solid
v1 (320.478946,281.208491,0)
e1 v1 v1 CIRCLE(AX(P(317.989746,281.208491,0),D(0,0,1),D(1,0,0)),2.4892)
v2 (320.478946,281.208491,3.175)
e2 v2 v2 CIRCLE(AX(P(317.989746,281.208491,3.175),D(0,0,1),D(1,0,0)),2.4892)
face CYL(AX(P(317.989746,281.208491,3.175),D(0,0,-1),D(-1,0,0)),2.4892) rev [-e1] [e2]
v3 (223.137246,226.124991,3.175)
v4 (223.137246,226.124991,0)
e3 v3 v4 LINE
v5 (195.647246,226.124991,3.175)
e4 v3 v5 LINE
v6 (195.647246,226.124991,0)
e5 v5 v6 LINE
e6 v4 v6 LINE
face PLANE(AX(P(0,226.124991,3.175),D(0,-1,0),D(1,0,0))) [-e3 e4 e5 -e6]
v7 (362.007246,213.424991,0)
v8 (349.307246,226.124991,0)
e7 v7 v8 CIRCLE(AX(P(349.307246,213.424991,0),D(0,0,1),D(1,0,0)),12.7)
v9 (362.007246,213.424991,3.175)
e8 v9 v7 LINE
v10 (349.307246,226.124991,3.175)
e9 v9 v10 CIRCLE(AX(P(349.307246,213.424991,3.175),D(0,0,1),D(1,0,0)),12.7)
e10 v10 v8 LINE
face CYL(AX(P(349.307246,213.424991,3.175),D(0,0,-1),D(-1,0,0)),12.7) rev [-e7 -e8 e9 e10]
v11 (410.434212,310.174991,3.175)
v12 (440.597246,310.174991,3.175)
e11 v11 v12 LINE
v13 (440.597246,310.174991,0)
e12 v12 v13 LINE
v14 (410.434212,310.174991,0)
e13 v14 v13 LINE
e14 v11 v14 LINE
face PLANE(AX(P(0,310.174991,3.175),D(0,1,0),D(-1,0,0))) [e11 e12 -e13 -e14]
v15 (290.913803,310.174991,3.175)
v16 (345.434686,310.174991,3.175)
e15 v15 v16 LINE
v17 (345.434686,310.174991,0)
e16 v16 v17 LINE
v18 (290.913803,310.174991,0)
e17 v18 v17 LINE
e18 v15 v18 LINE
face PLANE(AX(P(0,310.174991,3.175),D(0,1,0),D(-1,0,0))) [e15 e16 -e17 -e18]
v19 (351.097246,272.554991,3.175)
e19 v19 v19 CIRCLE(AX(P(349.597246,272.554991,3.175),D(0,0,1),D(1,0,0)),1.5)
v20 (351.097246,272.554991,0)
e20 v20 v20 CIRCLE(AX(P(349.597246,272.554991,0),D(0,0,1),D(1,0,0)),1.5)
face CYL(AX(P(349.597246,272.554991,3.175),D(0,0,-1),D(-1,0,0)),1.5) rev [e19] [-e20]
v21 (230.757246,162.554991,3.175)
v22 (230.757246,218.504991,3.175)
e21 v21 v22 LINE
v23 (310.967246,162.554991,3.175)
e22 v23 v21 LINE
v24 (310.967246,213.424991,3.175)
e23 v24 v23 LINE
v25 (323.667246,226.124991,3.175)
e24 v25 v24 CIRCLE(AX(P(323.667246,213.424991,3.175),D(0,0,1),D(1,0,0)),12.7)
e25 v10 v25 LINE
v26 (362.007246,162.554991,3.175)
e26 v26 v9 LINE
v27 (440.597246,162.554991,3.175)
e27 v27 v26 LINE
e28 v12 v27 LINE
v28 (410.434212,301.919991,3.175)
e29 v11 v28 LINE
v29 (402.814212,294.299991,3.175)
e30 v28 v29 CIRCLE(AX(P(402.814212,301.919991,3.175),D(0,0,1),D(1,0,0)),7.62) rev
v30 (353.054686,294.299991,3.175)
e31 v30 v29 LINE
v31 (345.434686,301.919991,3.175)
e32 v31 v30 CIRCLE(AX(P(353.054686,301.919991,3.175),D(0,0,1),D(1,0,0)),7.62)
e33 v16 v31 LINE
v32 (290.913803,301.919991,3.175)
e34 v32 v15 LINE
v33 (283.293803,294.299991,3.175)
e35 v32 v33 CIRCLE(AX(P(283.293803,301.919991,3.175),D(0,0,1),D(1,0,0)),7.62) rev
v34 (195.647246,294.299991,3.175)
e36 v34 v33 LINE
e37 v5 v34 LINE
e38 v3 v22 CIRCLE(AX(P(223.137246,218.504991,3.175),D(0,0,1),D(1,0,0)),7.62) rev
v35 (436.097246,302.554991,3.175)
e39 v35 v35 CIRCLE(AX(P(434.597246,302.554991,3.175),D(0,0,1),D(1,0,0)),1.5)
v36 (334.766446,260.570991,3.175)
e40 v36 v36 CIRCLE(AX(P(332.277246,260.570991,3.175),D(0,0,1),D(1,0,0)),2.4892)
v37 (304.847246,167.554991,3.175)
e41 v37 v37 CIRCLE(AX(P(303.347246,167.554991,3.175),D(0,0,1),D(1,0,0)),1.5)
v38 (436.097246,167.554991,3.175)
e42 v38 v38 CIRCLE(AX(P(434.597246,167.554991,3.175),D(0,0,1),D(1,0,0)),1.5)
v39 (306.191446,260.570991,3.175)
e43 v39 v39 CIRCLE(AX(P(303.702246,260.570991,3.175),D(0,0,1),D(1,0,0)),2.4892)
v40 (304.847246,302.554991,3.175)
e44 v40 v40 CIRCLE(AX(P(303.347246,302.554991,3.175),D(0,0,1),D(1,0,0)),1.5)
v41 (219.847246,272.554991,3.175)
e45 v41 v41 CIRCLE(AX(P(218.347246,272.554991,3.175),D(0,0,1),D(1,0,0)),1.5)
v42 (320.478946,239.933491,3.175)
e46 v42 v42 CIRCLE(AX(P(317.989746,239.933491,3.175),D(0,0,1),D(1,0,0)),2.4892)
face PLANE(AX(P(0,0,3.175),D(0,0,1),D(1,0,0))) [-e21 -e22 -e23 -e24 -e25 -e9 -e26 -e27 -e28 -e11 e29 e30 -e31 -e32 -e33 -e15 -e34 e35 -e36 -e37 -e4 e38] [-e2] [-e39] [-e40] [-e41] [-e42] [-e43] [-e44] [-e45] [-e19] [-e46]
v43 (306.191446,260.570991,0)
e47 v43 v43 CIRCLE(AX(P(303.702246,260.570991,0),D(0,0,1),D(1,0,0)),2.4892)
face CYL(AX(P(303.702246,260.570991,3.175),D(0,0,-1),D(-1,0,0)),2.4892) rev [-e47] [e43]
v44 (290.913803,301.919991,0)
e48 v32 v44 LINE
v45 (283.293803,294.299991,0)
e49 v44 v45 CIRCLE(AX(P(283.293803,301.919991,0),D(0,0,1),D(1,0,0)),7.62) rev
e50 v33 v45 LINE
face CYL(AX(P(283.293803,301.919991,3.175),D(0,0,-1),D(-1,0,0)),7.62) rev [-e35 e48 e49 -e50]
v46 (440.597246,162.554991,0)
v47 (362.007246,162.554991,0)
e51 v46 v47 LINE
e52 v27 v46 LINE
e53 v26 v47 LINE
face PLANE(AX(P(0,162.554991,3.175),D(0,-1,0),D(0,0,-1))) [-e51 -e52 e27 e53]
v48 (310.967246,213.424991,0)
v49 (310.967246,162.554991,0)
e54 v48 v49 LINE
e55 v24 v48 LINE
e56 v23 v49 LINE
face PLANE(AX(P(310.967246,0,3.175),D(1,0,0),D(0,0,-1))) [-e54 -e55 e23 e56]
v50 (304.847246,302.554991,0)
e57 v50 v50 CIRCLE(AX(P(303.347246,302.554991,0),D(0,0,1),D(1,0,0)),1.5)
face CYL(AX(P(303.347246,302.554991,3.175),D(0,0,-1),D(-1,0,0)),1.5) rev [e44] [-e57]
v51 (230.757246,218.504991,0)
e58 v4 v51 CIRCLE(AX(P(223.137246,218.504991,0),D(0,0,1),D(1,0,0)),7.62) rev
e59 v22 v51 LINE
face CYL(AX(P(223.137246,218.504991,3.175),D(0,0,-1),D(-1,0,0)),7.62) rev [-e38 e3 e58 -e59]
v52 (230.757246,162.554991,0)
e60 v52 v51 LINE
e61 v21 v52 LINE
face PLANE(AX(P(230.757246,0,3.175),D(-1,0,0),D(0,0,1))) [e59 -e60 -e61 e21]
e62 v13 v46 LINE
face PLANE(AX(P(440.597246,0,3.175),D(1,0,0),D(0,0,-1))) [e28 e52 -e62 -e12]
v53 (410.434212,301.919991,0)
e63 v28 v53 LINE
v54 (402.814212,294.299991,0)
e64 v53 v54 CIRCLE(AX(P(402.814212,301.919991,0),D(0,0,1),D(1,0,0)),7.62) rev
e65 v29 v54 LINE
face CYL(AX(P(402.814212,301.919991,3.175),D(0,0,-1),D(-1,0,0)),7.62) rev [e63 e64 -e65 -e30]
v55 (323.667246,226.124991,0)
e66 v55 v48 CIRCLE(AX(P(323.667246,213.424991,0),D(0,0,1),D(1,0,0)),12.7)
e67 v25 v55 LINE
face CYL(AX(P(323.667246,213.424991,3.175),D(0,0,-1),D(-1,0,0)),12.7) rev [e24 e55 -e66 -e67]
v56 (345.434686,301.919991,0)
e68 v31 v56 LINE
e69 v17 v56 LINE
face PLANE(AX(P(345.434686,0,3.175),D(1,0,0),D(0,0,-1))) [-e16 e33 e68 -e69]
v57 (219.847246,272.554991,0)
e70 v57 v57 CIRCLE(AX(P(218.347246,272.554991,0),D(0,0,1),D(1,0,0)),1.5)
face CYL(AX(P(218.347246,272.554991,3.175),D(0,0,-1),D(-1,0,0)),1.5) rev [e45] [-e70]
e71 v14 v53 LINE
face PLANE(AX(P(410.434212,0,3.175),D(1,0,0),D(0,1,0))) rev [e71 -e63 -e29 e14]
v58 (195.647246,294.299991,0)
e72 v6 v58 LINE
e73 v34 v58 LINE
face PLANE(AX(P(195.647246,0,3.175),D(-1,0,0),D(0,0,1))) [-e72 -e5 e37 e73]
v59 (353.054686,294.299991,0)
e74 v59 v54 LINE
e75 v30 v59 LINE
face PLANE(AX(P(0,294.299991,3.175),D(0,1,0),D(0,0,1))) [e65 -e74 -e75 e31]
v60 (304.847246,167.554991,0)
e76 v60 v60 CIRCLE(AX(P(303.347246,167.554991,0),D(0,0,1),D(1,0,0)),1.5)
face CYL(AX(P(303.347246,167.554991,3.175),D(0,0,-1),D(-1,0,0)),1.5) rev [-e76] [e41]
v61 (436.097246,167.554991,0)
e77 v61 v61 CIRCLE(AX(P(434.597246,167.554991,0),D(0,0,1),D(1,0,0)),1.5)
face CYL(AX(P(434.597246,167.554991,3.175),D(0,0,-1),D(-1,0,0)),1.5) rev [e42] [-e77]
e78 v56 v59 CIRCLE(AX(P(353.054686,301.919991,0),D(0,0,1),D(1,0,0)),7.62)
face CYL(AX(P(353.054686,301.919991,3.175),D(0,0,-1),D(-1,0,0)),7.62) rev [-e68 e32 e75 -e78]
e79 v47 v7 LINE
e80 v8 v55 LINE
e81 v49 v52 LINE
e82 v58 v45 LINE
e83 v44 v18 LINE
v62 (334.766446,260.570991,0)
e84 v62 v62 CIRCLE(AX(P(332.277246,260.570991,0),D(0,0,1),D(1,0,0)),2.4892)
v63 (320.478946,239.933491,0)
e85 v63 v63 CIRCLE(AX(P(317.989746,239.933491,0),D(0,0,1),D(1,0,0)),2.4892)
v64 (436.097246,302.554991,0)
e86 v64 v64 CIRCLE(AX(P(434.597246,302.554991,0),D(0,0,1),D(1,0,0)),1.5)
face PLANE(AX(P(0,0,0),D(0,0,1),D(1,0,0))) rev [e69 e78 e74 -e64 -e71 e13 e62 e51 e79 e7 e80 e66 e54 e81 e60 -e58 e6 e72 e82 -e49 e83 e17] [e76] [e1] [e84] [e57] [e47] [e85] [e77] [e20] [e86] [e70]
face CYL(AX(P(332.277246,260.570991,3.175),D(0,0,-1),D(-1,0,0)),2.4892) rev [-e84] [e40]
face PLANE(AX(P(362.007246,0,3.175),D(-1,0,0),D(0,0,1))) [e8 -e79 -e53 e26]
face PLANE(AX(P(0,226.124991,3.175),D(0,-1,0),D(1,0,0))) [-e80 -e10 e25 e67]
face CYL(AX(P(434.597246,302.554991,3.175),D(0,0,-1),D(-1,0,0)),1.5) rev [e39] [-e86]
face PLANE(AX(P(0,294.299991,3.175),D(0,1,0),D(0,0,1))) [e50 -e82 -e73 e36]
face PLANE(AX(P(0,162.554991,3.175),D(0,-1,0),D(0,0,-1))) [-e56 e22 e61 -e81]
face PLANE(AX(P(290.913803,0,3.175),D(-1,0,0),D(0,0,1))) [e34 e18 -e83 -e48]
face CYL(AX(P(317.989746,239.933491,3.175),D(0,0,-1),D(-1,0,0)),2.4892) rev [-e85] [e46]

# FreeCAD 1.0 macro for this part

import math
import FreeCAD as App
import Part
import Sketcher

V = App.Vector
Q = App.Units.Quantity

doc = App.newDocument("Part")
body = doc.addObject("PartDesign::Body", "Body")

# Sketch on XY plane
sketch1 = body.newObject("Sketcher::SketchObject", "Sketch")
sketch1.AttachmentSupport = (doc.getObject("XY_Plane"), [""])
sketch1.MapMode = "FlatFace"
sketch1.addGeometry(Part.LineSegment(V(323.7, 226.1, 0), V(349.3, 226.1, 0)), False)
sketch1.addGeometry(Part.ArcOfCircle(Part.Circle(V(349.3, 213.4, 0), V(0, 0, 1), 12.7), math.radians(0), math.radians(90)), False)
sketch1.addGeometry(Part.LineSegment(V(362, 213.4, 0), V(362, 162.6, 0)), False)
sketch1.addGeometry(Part.LineSegment(V(362, 162.6, 0), V(440.6, 162.6, 0)), False)
sketch1.addGeometry(Part.LineSegment(V(440.6, 162.6, 0), V(440.6, 310.2, 0)), False)
sketch1.addGeometry(Part.LineSegment(V(440.6, 310.2, 0), V(410.4, 310.2, 0)), False)
sketch1.addGeometry(Part.LineSegment(V(410.4, 310.2, 0), V(410.4, 301.9, 0)), False)
sketch1.addGeometry(Part.ArcOfCircle(Part.Circle(V(402.8, 301.9, 0), V(0, 0, 1), 7.6), math.radians(-90), math.radians(0)), False)
sketch1.addGeometry(Part.LineSegment(V(402.8, 294.3, 0), V(353.1, 294.3, 0)), False)
sketch1.addGeometry(Part.ArcOfCircle(Part.Circle(V(353.1, 301.9, 0), V(0, 0, 1), 7.6), math.radians(-180), math.radians(-90)), False)
sketch1.addGeometry(Part.LineSegment(V(345.4, 301.9, 0), V(345.4, 310.2, 0)), False)
sketch1.addGeometry(Part.LineSegment(V(345.4, 310.2, 0), V(290.9, 310.2, 0)), False)
sketch1.addGeometry(Part.LineSegment(V(290.9, 310.2, 0), V(290.9, 301.9, 0)), False)
sketch1.addGeometry(Part.ArcOfCircle(Part.Circle(V(283.3, 301.9, 0), V(0, 0, 1), 7.6), math.radians(-90), math.radians(0)), False)
sketch1.addGeometry(Part.LineSegment(V(283.3, 294.3, 0), V(195.6, 294.3, 0)), False)
sketch1.addGeometry(Part.LineSegment(V(195.6, 294.3, 0), V(195.6, 226.1, 0)), False)
sketch1.addGeometry(Part.LineSegment(V(195.6, 226.1, 0), V(223.1, 226.1, 0)), False)
sketch1.addGeometry(Part.ArcOfCircle(Part.Circle(V(223.1, 218.5, 0), V(0, 0, 1), 7.6), math.radians(0), math.radians(90)), False)
sketch1.addGeometry(Part.LineSegment(V(230.8, 218.5, 0), V(230.8, 162.6, 0)), False)
sketch1.addGeometry(Part.LineSegment(V(230.8, 162.6, 0), V(311, 162.6, 0)), False)
sketch1.addGeometry(Part.LineSegment(V(311, 162.6, 0), V(311, 213.4, 0)), False)
sketch1.addGeometry(Part.ArcOfCircle(Part.Circle(V(323.7, 213.4, 0), V(0, 0, 1), 12.7), math.radians(90), math.radians(180)), False)
sketch1.addGeometry(Part.Circle(V(303.3, 167.6, 0), V(0, 0, 1), 1.5), False)
sketch1.addGeometry(Part.Circle(V(434.6, 167.6, 0), V(0, 0, 1), 1.5), False)
sketch1.addGeometry(Part.Circle(V(318, 239.9, 0), V(0, 0, 1), 2.5), False)
sketch1.addGeometry(Part.Circle(V(303.7, 260.6, 0), V(0, 0, 1), 2.5), False)
sketch1.addGeometry(Part.Circle(V(218.3, 272.6, 0), V(0, 0, 1), 1.5), False)
sketch1.addGeometry(Part.Circle(V(318, 281.2, 0), V(0, 0, 1), 2.5), False)
sketch1.addGeometry(Part.Circle(V(303.3, 302.6, 0), V(0, 0, 1), 1.5), False)
sketch1.addGeometry(Part.Circle(V(332.3, 260.6, 0), V(0, 0, 1), 2.5), False)
sketch1.addGeometry(Part.Circle(V(349.6, 272.6, 0), V(0, 0, 1), 1.5), False)
sketch1.addGeometry(Part.Circle(V(434.6, 302.6, 0), V(0, 0, 1), 1.5), False)
sketch1.addConstraint(Sketcher.Constraint("Tangent", 0, 2, 1, 2))
sketch1.addConstraint(Sketcher.Constraint("Tangent", 1, 1, 2, 1))
sketch1.addConstraint(Sketcher.Constraint("Coincident", 2, 2, 3, 1))
sketch1.addConstraint(Sketcher.Constraint("Coincident", 3, 2, 4, 1))
sketch1.addConstraint(Sketcher.Constraint("Coincident", 4, 2, 5, 1))
sketch1.addConstraint(Sketcher.Constraint("Coincident", 5, 2, 6, 1))
sketch1.addConstraint(Sketcher.Constraint("Tangent", 6, 2, 7, 2))
sketch1.addConstraint(Sketcher.Constraint("Tangent", 7, 1, 8, 1))
sketch1.addConstraint(Sketcher.Constraint("Tangent", 8, 2, 9, 2))
sketch1.addConstraint(Sketcher.Constraint("Tangent", 9, 1, 10, 1))
sketch1.addConstraint(Sketcher.Constraint("Coincident", 10, 2, 11, 1))
sketch1.addConstraint(Sketcher.Constraint("Coincident", 11, 2, 12, 1))
sketch1.addConstraint(Sketcher.Constraint("Tangent", 12, 2, 13, 2))
sketch1.addConstraint(Sketcher.Constraint("Tangent", 13, 1, 14, 1))
sketch1.addConstraint(Sketcher.Constraint("Coincident", 14, 2, 15, 1))
sketch1.addConstraint(Sketcher.Constraint("Coincident", 15, 2, 16, 1))
sketch1.addConstraint(Sketcher.Constraint("Tangent", 16, 2, 17, 2))
sketch1.addConstraint(Sketcher.Constraint("Tangent", 17, 1, 18, 1))
sketch1.addConstraint(Sketcher.Constraint("Coincident", 18, 2, 19, 1))
sketch1.addConstraint(Sketcher.Constraint("Coincident", 19, 2, 20, 1))
sketch1.addConstraint(Sketcher.Constraint("Tangent", 20, 2, 21, 2))
sketch1.addConstraint(Sketcher.Constraint("Tangent", 21, 1, 0, 1))
sketch1.addConstraint(Sketcher.Constraint("Horizontal", 0))
sketch1.addConstraint(Sketcher.Constraint("Vertical", 2))
sketch1.addConstraint(Sketcher.Constraint("Horizontal", 3))
sketch1.addConstraint(Sketcher.Constraint("Vertical", 4))
sketch1.addConstraint(Sketcher.Constraint("Horizontal", 5))
sketch1.addConstraint(Sketcher.Constraint("Vertical", 6))
sketch1.addConstraint(Sketcher.Constraint("Horizontal", 8))
sketch1.addConstraint(Sketcher.Constraint("Vertical", 10))
sketch1.addConstraint(Sketcher.Constraint("Horizontal", 11))
sketch1.addConstraint(Sketcher.Constraint("Vertical", 12))
sketch1.addConstraint(Sketcher.Constraint("Horizontal", 14))
sketch1.addConstraint(Sketcher.Constraint("Vertical", 15))
sketch1.addConstraint(Sketcher.Constraint("Horizontal", 16))
sketch1.addConstraint(Sketcher.Constraint("Vertical", 18))
sketch1.addConstraint(Sketcher.Constraint("Horizontal", 19))
sketch1.addConstraint(Sketcher.Constraint("Vertical", 20))
sketch1.addConstraint(Sketcher.Constraint("Equal", 7, 9))
sketch1.addConstraint(Sketcher.Constraint("Equal", 9, 13))
sketch1.addConstraint(Sketcher.Constraint("Equal", 13, 17))
sketch1.addConstraint(Sketcher.Constraint("Equal", 1, 21))
sketch1.addConstraint(Sketcher.Constraint("Equal", 22, 23))
sketch1.addConstraint(Sketcher.Constraint("Equal", 24, 25))
sketch1.addConstraint(Sketcher.Constraint("Equal", 23, 26))
sketch1.addConstraint(Sketcher.Constraint("Equal", 25, 27))
sketch1.addConstraint(Sketcher.Constraint("Equal", 26, 28))
sketch1.addConstraint(Sketcher.Constraint("Equal", 27, 29))
sketch1.addConstraint(Sketcher.Constraint("Equal", 28, 30))
sketch1.addConstraint(Sketcher.Constraint("Equal", 30, 31))
sketch1.addConstraint(Sketcher.Constraint("Horizontal", 9, 3, 13, 3))
sketch1.addConstraint(Sketcher.Constraint("Horizontal", 22, 3, 23, 3))
sketch1.addConstraint(Sketcher.Constraint("Horizontal", 25, 3, 29, 3))
sketch1.addConstraint(Sketcher.Constraint("Horizontal", 26, 3, 30, 3))
sketch1.addConstraint(Sketcher.Constraint("Horizontal", 28, 3, 31, 3))
sketch1.addConstraint(Sketcher.Constraint("Horizontal", 5, 2, 10, 2))
sketch1.addConstraint(Sketcher.Constraint("Horizontal", 0, 2, 15, 2))
sketch1.addConstraint(Sketcher.Constraint("Horizontal", 3, 2, 18, 2))
sketch1.addConstraint(Sketcher.Constraint("Vertical", 24, 3, 27, 3))
sketch1.addConstraint(Sketcher.Constraint("Vertical", 22, 3, 28, 3))
sketch1.addConstraint(Sketcher.Constraint("Vertical", 23, 3, 31, 3))
sketch1.addConstraint(Sketcher.Constraint("Radius", 1, Q("0.5 in")))
sketch1.addConstraint(Sketcher.Constraint("Radius", 7, Q("0.3 in")))
sketch1.addConstraint(Sketcher.Constraint("Diameter", 24, Q("0.196 in")))
sketch1.addConstraint(Sketcher.Constraint("DistanceX", 22, 3, 21, 3, Q("0.8 in")))
sketch1.addConstraint(Sketcher.Constraint("DistanceY", 31, 3, 4, 2, Q("0.3 in")))
sketch1.addConstraint(Sketcher.Constraint("Diameter", 22, 3.0))
sketch1.addConstraint(Sketcher.Constraint("DistanceY", 6, 2, 6, 1, Q("0.325 in")))
sketch1.addConstraint(Sketcher.Constraint("DistanceX", 25, 3, 24, 3, Q("0.5625 in")))
sketch1.addConstraint(Sketcher.Constraint("DistanceY", 24, 3, 25, 3, Q("0.8125 in")))
sketch1.addConstraint(Sketcher.Constraint("DistanceY", 25, 3, 27, 3, Q("0.8125 in")))
sketch1.addConstraint(Sketcher.Constraint("DistanceX", 24, 3, 29, 3, Q("0.5625 in")))
sketch1.addConstraint(Sketcher.Constraint("DistanceX", 0, 1, 0, 2, 25.64))
sketch1.addConstraint(Sketcher.Constraint("DistanceX", 3, 1, 3, 2, 78.59))
sketch1.addConstraint(Sketcher.Constraint("DistanceX", 16, 1, 16, 2, 27.49))
sketch1.addConstraint(Sketcher.Constraint("DistanceX", 19, 1, 19, 2, 80.21))
sketch1.addConstraint(Sketcher.Constraint("DistanceY", 2, 2, 2, 1, 50.87))
sketch1.addConstraint(Sketcher.Constraint("DistanceY", 4, 1, 4, 2, 147.62))
sketch1.addConstraint(Sketcher.Constraint("DistanceY", 22, 3, 21, 3, 45.87))
sketch1.addConstraint(Sketcher.Constraint("DistanceX", 1, 3, 23, 3, 85.29))
sketch1.addConstraint(Sketcher.Constraint("DistanceX", 24, 3, 21, 3, 5.6775))
sketch1.addConstraint(Sketcher.Constraint("DistanceY", 21, 3, 24, 3, 26.5085))
sketch1.addConstraint(Sketcher.Constraint("DistanceX", 26, 3, 17, 3, 4.79))
sketch1.addConstraint(Sketcher.Constraint("DistanceY", 17, 3, 26, 3, 54.05))
sketch1.addConstraint(Sketcher.Constraint("DistanceX", 29, 3, 30, 3, 17.32))
sketch1.addConstraint(Sketcher.Constraint("DistanceX", 5, 2, 5, 1, 30.163034))
sketch1.addConstraint(Sketcher.Constraint("DistanceX", 8, 2, 8, 1, 49.759526))
sketch1.addConstraint(Sketcher.Constraint("DistanceX", 11, 2, 11, 1, 54.520883))
sketch1.addConstraint(Sketcher.Constraint("DistanceY", -1, 1, 1, 3, 213.424991))
sketch1.addConstraint(Sketcher.Constraint("DistanceX", -1, 1, 7, 3, 402.814212))
pad1 = body.newObject("PartDesign::Pad", "Pad")
pad1.Profile = sketch1
pad1.Length = Q("0.125 in")

doc.recompute()
